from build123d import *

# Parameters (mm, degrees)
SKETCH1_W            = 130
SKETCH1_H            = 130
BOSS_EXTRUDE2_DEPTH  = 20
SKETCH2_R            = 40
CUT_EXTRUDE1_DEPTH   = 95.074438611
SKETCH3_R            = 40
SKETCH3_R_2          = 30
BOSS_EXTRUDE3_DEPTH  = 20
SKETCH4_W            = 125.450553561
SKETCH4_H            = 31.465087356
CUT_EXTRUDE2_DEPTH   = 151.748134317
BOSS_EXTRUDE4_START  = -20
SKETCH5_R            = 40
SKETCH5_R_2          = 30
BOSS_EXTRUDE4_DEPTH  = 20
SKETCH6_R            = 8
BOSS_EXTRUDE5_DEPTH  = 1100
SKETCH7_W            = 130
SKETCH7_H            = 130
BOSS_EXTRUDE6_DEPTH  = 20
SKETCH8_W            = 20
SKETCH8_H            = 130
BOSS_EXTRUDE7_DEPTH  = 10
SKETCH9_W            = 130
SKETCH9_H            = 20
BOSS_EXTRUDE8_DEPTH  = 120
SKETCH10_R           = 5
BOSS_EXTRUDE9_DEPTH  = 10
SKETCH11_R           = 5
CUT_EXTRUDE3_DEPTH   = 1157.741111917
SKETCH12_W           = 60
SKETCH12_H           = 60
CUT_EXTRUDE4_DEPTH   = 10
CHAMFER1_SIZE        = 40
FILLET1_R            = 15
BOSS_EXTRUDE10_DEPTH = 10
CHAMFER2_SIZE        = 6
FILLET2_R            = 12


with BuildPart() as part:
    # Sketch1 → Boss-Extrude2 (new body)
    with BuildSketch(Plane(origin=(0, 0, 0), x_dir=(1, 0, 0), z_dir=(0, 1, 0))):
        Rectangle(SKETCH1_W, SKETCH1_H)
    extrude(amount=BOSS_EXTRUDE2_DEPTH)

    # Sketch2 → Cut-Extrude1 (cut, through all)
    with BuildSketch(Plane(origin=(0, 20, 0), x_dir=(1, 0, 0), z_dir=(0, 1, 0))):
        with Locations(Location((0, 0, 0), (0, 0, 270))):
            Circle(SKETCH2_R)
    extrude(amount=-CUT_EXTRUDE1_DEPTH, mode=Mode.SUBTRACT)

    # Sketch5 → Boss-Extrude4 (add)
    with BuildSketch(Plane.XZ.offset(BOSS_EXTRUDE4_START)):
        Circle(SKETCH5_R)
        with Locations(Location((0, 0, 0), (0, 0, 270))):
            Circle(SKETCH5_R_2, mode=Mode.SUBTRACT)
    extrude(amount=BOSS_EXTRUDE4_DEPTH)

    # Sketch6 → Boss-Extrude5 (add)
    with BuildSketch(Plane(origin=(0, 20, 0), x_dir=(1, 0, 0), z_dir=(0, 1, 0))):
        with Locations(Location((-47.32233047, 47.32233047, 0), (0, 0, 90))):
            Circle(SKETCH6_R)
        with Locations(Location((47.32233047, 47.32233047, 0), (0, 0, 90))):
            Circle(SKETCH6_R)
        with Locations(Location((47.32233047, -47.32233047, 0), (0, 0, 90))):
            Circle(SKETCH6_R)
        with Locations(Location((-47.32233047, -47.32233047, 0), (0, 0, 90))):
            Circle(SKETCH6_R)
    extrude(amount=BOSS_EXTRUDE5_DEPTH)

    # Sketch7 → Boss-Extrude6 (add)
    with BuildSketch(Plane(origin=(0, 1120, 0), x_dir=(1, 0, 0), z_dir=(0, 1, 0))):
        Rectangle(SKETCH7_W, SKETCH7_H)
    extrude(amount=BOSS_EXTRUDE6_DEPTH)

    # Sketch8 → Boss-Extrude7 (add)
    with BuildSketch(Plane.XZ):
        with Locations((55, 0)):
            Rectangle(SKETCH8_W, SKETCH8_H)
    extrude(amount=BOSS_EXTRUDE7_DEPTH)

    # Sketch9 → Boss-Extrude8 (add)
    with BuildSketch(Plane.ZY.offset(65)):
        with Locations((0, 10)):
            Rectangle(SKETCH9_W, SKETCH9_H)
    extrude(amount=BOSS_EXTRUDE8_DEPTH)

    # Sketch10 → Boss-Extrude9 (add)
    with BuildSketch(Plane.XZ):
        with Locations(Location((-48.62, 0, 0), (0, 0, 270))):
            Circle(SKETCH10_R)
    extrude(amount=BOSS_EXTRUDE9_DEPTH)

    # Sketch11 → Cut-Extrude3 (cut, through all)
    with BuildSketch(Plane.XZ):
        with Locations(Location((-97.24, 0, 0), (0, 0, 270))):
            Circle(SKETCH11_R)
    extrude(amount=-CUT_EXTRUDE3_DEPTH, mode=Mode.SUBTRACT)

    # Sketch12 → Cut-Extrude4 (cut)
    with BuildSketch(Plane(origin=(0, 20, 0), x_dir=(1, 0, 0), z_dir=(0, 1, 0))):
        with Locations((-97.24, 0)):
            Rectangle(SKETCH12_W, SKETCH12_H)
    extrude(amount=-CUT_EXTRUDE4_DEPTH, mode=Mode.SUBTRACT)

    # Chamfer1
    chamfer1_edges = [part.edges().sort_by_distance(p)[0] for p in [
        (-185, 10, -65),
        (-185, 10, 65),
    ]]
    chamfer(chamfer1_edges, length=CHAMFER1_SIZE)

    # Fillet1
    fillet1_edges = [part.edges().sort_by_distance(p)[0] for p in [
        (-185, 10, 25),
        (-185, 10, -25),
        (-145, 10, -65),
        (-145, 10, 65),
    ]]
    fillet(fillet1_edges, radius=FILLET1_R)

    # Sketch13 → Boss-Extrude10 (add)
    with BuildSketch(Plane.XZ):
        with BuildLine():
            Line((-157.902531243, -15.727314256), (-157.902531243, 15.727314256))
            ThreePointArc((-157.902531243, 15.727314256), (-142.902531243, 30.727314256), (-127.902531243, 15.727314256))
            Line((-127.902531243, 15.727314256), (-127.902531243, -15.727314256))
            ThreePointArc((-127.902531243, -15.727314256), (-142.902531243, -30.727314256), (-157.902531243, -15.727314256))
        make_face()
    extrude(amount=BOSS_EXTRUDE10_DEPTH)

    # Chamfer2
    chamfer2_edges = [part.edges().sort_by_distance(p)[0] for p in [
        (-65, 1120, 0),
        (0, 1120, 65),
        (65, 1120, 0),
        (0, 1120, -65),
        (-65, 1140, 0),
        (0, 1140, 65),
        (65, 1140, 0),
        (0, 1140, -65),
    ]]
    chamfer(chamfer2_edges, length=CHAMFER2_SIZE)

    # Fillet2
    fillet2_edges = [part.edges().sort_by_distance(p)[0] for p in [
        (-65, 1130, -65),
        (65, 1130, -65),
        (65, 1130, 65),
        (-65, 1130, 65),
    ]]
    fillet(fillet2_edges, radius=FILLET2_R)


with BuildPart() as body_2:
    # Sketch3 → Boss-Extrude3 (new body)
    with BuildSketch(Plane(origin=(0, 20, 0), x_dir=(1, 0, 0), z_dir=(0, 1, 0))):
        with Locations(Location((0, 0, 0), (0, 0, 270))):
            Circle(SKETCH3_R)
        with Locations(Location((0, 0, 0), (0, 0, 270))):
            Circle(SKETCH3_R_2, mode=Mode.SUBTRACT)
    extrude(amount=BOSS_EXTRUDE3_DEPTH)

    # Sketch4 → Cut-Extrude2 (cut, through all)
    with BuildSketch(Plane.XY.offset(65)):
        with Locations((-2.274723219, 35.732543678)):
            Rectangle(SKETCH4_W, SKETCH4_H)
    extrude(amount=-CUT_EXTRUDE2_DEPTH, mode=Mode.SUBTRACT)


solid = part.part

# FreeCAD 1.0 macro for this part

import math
import FreeCAD as App
import Part
import Sketcher


def edges_at(feature, points):
    """Names of the edges that pass closest to the given points."""
    edges = feature.Shape.Edges
    near = lambda p: min(range(len(edges)), key=lambda i: edges[i].distToShape(Part.Vertex(*p))[0])
    return sorted({f"Edge{near(p) + 1}" for p in points})


def add_polygon(sketch, points):
    """Adds a closed chain of lines whose ends are joined by coincident constraints."""
    first, n = sketch.GeometryCount, len(points)
    for a, b in zip(points, points[1:] + points[:1]):
        sketch.addGeometry(Part.LineSegment(App.Vector(*a, 0), App.Vector(*b, 0)), False)
    for i in range(n):
        sketch.addConstraint(Sketcher.Constraint("Coincident", first + i, 2, first + (i + 1) % n, 1))

doc = App.newDocument("Part")
body = doc.addObject("PartDesign::Body", "Body")

# Sketch on XZ plane
sketch1 = body.newObject("Sketcher::SketchObject", "Sketch")
sketch1.AttachmentSupport = (doc.getObject("XZ_Plane"), [""])
sketch1.MapMode = "FlatFace"
add_polygon(sketch1, [(-65, -65), (-65, 65), (65, 65), (65, -65)])  # lines 0-3
sketch1.addConstraint(Sketcher.Constraint("Vertical", 0))
sketch1.addConstraint(Sketcher.Constraint("Horizontal", 1))
sketch1.addConstraint(Sketcher.Constraint("Vertical", 2))
sketch1.addConstraint(Sketcher.Constraint("Horizontal", 3))
sketch1.addConstraint(Sketcher.Constraint("Symmetric", 0, 2, 2, 2, -1, 1))
sketch1.addConstraint(Sketcher.Constraint("Equal", 3, 0))
sketch1.addConstraint(Sketcher.Constraint("DistanceX", 1, 1, 1, 2, 130.0))
pad1 = body.newObject("PartDesign::Pad", "Pad")
pad1.Profile = sketch1
pad1.Length = 20
pad1.Reversed = True

# Sketch on XZ plane
sketch2 = body.newObject("Sketcher::SketchObject", "Sketch001")
sketch2.AttachmentSupport = (doc.getObject("XZ_Plane"), [""])
sketch2.MapMode = "FlatFace"
sketch2.AttachmentOffset = App.Placement(App.Vector(0, 0, -20), App.Rotation())
sketch2.addGeometry(Part.Circle(App.Vector(0, 0, 0), App.Vector(0, 0, 1), 40), False)
sketch2.addConstraint(Sketcher.Constraint("Coincident", 0, 3, -1, 1))
sketch2.addConstraint(Sketcher.Constraint("Diameter", 0, 80.0))
pocket1 = body.newObject("PartDesign::Pocket", "Pocket")
pocket1.Profile = sketch2
pocket1.Type = "ThroughAll"
pocket1.Reversed = True

# Sketch on XZ plane
sketch3 = body.newObject("Sketcher::SketchObject", "Sketch002")
sketch3.AttachmentSupport = (doc.getObject("XZ_Plane"), [""])
sketch3.MapMode = "FlatFace"
sketch3.AttachmentOffset = App.Placement(App.Vector(0, 0, -20), App.Rotation())
sketch3.addGeometry(Part.Circle(App.Vector(0, 0, 0), App.Vector(0, 0, 1), 40), False)
sketch3.addGeometry(Part.Circle(App.Vector(0, 0, 0), App.Vector(0, 0, 1), 30), False)
sketch3.addConstraint(Sketcher.Constraint("Coincident", 0, 3, -1, 1))
sketch3.addConstraint(Sketcher.Constraint("Coincident", 1, 3, -1, 1))
sketch3.addConstraint(Sketcher.Constraint("Diameter", 0, 80.0))
sketch3.addConstraint(Sketcher.Constraint("Diameter", 1, 60.0))
pad2 = body.newObject("PartDesign::Pad", "Pad001")
pad2.Profile = sketch3
pad2.Length = 20

# Sketch on XZ plane
sketch4 = body.newObject("Sketcher::SketchObject", "Sketch003")
sketch4.AttachmentSupport = (doc.getObject("XZ_Plane"), [""])
sketch4.MapMode = "FlatFace"
sketch4.AttachmentOffset = App.Placement(App.Vector(0, 0, -20), App.Rotation())
sketch4.addGeometry(Part.Circle(App.Vector(-47, -47, 0), App.Vector(0, 0, 1), 8), False)
sketch4.addGeometry(Part.Circle(App.Vector(47, -47, 0), App.Vector(0, 0, 1), 8), False)
sketch4.addGeometry(Part.Circle(App.Vector(47, 47, 0), App.Vector(0, 0, 1), 8), False)
sketch4.addGeometry(Part.Circle(App.Vector(-47, 47, 0), App.Vector(0, 0, 1), 8), False)
sketch4.addConstraint(Sketcher.Constraint("Equal", 0, 1))
sketch4.addConstraint(Sketcher.Constraint("Equal", 1, 2))
sketch4.addConstraint(Sketcher.Constraint("Equal", 2, 3))
sketch4.addConstraint(Sketcher.Constraint("Symmetric", 0, 3, 2, 3, -1, 1))
sketch4.addConstraint(Sketcher.Constraint("Symmetric", 1, 3, 3, 3, -1, 1))
sketch4.addConstraint(Sketcher.Constraint("Symmetric", 0, 3, 1, 3, -2))
sketch4.addConstraint(Sketcher.Constraint("Diameter", 0, 16.0))
sketch4.addConstraint(Sketcher.Constraint("DistanceX", 0, 3, -1, 1, 47.32233))
sketch4.addConstraint(Sketcher.Constraint("DistanceY", 0, 3, -1, 1, 47.32233))
pad3 = body.newObject("PartDesign::Pad", "Pad002")
pad3.Profile = sketch4
pad3.Length = 1100
pad3.Reversed = True

# Sketch on XZ plane
sketch5 = body.newObject("Sketcher::SketchObject", "Sketch004")
sketch5.AttachmentSupport = (doc.getObject("XZ_Plane"), [""])
sketch5.MapMode = "FlatFace"
sketch5.AttachmentOffset = App.Placement(App.Vector(0, 0, -1120), App.Rotation())
add_polygon(sketch5, [(-65, -65), (-65, 65), (65, 65), (65, -65)])  # lines 0-3
sketch5.addConstraint(Sketcher.Constraint("Vertical", 0))
sketch5.addConstraint(Sketcher.Constraint("Horizontal", 1))
sketch5.addConstraint(Sketcher.Constraint("Vertical", 2))
sketch5.addConstraint(Sketcher.Constraint("Horizontal", 3))
sketch5.addConstraint(Sketcher.Constraint("Symmetric", 0, 2, 2, 2, -1, 1))
sketch5.addConstraint(Sketcher.Constraint("Equal", 3, 0))
sketch5.addConstraint(Sketcher.Constraint("DistanceX", 1, 1, 1, 2, 130.0))
pad4 = body.newObject("PartDesign::Pad", "Pad003")
pad4.Profile = sketch5
pad4.Length = 20
pad4.Reversed = True

# Sketch on XZ plane
sketch6 = body.newObject("Sketcher::SketchObject", "Sketch005")
sketch6.AttachmentSupport = (doc.getObject("XZ_Plane"), [""])
sketch6.MapMode = "FlatFace"
add_polygon(sketch6, [(45, 65), (45, -65), (65, -65), (65, 65)])  # lines 0-3
sketch6.addConstraint(Sketcher.Constraint("Vertical", 0))
sketch6.addConstraint(Sketcher.Constraint("Horizontal", 1))
sketch6.addConstraint(Sketcher.Constraint("Vertical", 2))
sketch6.addConstraint(Sketcher.Constraint("Horizontal", 3))
sketch6.addConstraint(Sketcher.Constraint("DistanceX", 1, 1, 1, 2, 20.0))
sketch6.addConstraint(Sketcher.Constraint("DistanceY", 0, 2, 0, 1, 130.0))
sketch6.addConstraint(Sketcher.Constraint("DistanceX", -1, 1, 0, 2, 45.0))
sketch6.addConstraint(Sketcher.Constraint("DistanceY", 0, 2, -1, 1, 65.0))
pad5 = body.newObject("PartDesign::Pad", "Pad004")
pad5.Profile = sketch6
pad5.Length = 10

# Sketch on YZ plane
sketch7 = body.newObject("Sketcher::SketchObject", "Sketch006")
sketch7.AttachmentSupport = (doc.getObject("YZ_Plane"), [""])
sketch7.MapMode = "FlatFace"
sketch7.AttachmentOffset = App.Placement(App.Vector(0, 0, -65), App.Rotation())
add_polygon(sketch7, [(20, -65), (0, -65), (0, 65), (20, 65)])  # lines 0-3
sketch7.addConstraint(Sketcher.Constraint("Horizontal", 0))
sketch7.addConstraint(Sketcher.Constraint("Vertical", 1))
sketch7.addConstraint(Sketcher.Constraint("Horizontal", 2))
sketch7.addConstraint(Sketcher.Constraint("Vertical", 3))
sketch7.addConstraint(Sketcher.Constraint("Symmetric", 0, 2, 1, 2, -1, 1))
sketch7.addConstraint(Sketcher.Constraint("DistanceX", 0, 2, 0, 1, 20.0))
sketch7.addConstraint(Sketcher.Constraint("DistanceY", 1, 1, 1, 2, 130.0))
pad6 = body.newObject("PartDesign::Pad", "Pad005")
pad6.Profile = sketch7
pad6.Length = 120
pad6.Reversed = True

# Sketch on XZ plane
sketch8 = body.newObject("Sketcher::SketchObject", "Sketch007")
sketch8.AttachmentSupport = (doc.getObject("XZ_Plane"), [""])
sketch8.MapMode = "FlatFace"
sketch8.addGeometry(Part.Circle(App.Vector(-49, 0, 0), App.Vector(0, 0, 1), 5), False)
sketch8.addConstraint(Sketcher.Constraint("PointOnObject", 0, 3, -1))
sketch8.addConstraint(Sketcher.Constraint("Diameter", 0, 10.0))
sketch8.addConstraint(Sketcher.Constraint("DistanceX", 0, 3, -1, 1, 48.62))
pad7 = body.newObject("PartDesign::Pad", "Pad006")
pad7.Profile = sketch8
pad7.Length = 10

# Sketch on XZ plane
sketch9 = body.newObject("Sketcher::SketchObject", "Sketch008")
sketch9.AttachmentSupport = (doc.getObject("XZ_Plane"), [""])
sketch9.MapMode = "FlatFace"
sketch9.addGeometry(Part.Circle(App.Vector(-97, 0, 0), App.Vector(0, 0, 1), 5), False)
sketch9.addConstraint(Sketcher.Constraint("PointOnObject", 0, 3, -1))
sketch9.addConstraint(Sketcher.Constraint("Diameter", 0, 10.0))
sketch9.addConstraint(Sketcher.Constraint("DistanceX", 0, 3, -1, 1, 97.24))
pocket2 = body.newObject("PartDesign::Pocket", "Pocket001")
pocket2.Profile = sketch9
pocket2.Type = "ThroughAll"

# Sketch on XZ plane
sketch10 = body.newObject("Sketcher::SketchObject", "Sketch009")
sketch10.AttachmentSupport = (doc.getObject("XZ_Plane"), [""])
sketch10.MapMode = "FlatFace"
sketch10.AttachmentOffset = App.Placement(App.Vector(0, 0, -20), App.Rotation())
add_polygon(sketch10, [(-127, -30), (-127, 30), (-67, 30), (-67, -30)])  # lines 0-3
sketch10.addConstraint(Sketcher.Constraint("Vertical", 0))
sketch10.addConstraint(Sketcher.Constraint("Horizontal", 1))
sketch10.addConstraint(Sketcher.Constraint("Vertical", 2))
sketch10.addConstraint(Sketcher.Constraint("Horizontal", 3))
sketch10.addConstraint(Sketcher.Constraint("Equal", 3, 0))
sketch10.addConstraint(Sketcher.Constraint("DistanceX", 1, 1, 1, 2, 60.0))
sketch10.addConstraint(Sketcher.Constraint("DistanceY", -1, 1, 0, 2, 30.0))
sketch10.addConstraint(Sketcher.Constraint("DistanceX", 0, 2, -1, 1, 127.24))
pocket3 = body.newObject("PartDesign::Pocket", "Pocket002")
pocket3.Profile = sketch10
pocket3.Length = 10
pocket3.Reversed = True
doc.recompute()

chamfer = body.newObject("PartDesign::Chamfer", "Chamfer")
chamfer.Base = (pocket3, edges_at(pocket3, [(-185, 10, -65), (-185, 10, 65)]))
chamfer.Size = 40
doc.recompute()

fillet = body.newObject("PartDesign::Fillet", "Fillet")
fillet.Base = (chamfer, edges_at(chamfer, [
    (-185, 10, 25),
    (-185, 10, -25),
    (-145, 10, -65),
    (-145, 10, 65),
]))
fillet.Radius = 15

# Sketch on XZ plane
sketch11 = body.newObject("Sketcher::SketchObject", "Sketch010")
sketch11.AttachmentSupport = (doc.getObject("XZ_Plane"), [""])
sketch11.MapMode = "FlatFace"
sketch11.addGeometry(Part.LineSegment(App.Vector(-158, 16, 0), App.Vector(-158, -16, 0)), False)
sketch11.addGeometry(Part.ArcOfCircle(Part.Circle(App.Vector(-143, -16, 0), App.Vector(0, 0, 1), 15), math.radians(180), math.radians(360)), False)
sketch11.addGeometry(Part.LineSegment(App.Vector(-128, -16, 0), App.Vector(-128, 16, 0)), False)
sketch11.addGeometry(Part.ArcOfCircle(Part.Circle(App.Vector(-143, 16, 0), App.Vector(0, 0, 1), 15), math.radians(0), math.radians(180)), False)
sketch11.addConstraint(Sketcher.Constraint("Tangent", 0, 2, 1, 1))
sketch11.addConstraint(Sketcher.Constraint("Tangent", 1, 2, 2, 1))
sketch11.addConstraint(Sketcher.Constraint("Tangent", 2, 2, 3, 1))
sketch11.addConstraint(Sketcher.Constraint("Tangent", 3, 2, 0, 1))
sketch11.addConstraint(Sketcher.Constraint("Vertical", 0))
sketch11.addConstraint(Sketcher.Constraint("Vertical", 2))
sketch11.addConstraint(Sketcher.Constraint("Radius", 1, 15.0))
sketch11.addConstraint(Sketcher.Constraint("DistanceY", 0, 2, 0, 1, 31.454629))
sketch11.addConstraint(Sketcher.Constraint("DistanceX", 1, 3, -1, 1, 142.902531))
sketch11.addConstraint(Sketcher.Constraint("DistanceY", 1, 3, -1, 1, 15.727314))
pad8 = body.newObject("PartDesign::Pad", "Pad007")
pad8.Profile = sketch11
pad8.Length = 10
doc.recompute()

chamfer2 = body.newObject("PartDesign::Chamfer", "Chamfer001")
chamfer2.Base = (pad8, edges_at(pad8, [
    (-65, 1120, 0),
    (0, 1120, 65),
    (65, 1120, 0),
    (0, 1120, -65),
    (-65, 1140, 0),
    (0, 1140, 65),
    (65, 1140, 0),
    (0, 1140, -65),
]))
chamfer2.Size = 6
doc.recompute()

fillet2 = body.newObject("PartDesign::Fillet", "Fillet001")
fillet2.Base = (chamfer2, edges_at(chamfer2, [
    (-65, 1130, -65),
    (65, 1130, -65),
    (65, 1130, 65),
    (-65, 1130, 65),
]))
fillet2.Radius = 12
body2 = doc.addObject("PartDesign::Body", "Body001")

# Sketch on XZ plane
sketch12 = body2.newObject("Sketcher::SketchObject", "Sketch011")
sketch12.AttachmentSupport = (doc.getObject("XZ_Plane001"), [""])
sketch12.MapMode = "FlatFace"
sketch12.AttachmentOffset = App.Placement(App.Vector(0, 0, -20), App.Rotation())
sketch12.addGeometry(Part.Circle(App.Vector(0, 0, 0), App.Vector(0, 0, 1), 40), False)
sketch12.addGeometry(Part.Circle(App.Vector(0, 0, 0), App.Vector(0, 0, 1), 30), False)
sketch12.addConstraint(Sketcher.Constraint("Coincident", 0, 3, -1, 1))
sketch12.addConstraint(Sketcher.Constraint("Coincident", 1, 3, -1, 1))
sketch12.addConstraint(Sketcher.Constraint("Diameter", 0, 80.0))
sketch12.addConstraint(Sketcher.Constraint("Diameter", 1, 60.0))
pad9 = body2.newObject("PartDesign::Pad", "Pad008")
pad9.Profile = sketch12
pad9.Length = 20
pad9.Reversed = True

# Sketch on XY plane
sketch13 = body2.newObject("Sketcher::SketchObject", "Sketch012")
sketch13.AttachmentSupport = (doc.getObject("XY_Plane001"), [""])
sketch13.MapMode = "FlatFace"
sketch13.AttachmentOffset = App.Placement(App.Vector(0, 0, 65), App.Rotation())
add_polygon(sketch13, [(-65, 51), (-65, 20), (60, 20), (60, 51)])  # lines 0-3
sketch13.addConstraint(Sketcher.Constraint("Vertical", 0))
sketch13.addConstraint(Sketcher.Constraint("Horizontal", 1))
sketch13.addConstraint(Sketcher.Constraint("Vertical", 2))
sketch13.addConstraint(Sketcher.Constraint("Horizontal", 3))
sketch13.addConstraint(Sketcher.Constraint("DistanceX", 0, 2, -1, 1, 65.0))
sketch13.addConstraint(Sketcher.Constraint("DistanceY", -1, 1, 0, 2, 20.0))
sketch13.addConstraint(Sketcher.Constraint("DistanceX", 1, 1, 1, 2, 125.450554))
sketch13.addConstraint(Sketcher.Constraint("DistanceY", 0, 2, 0, 1, 31.465087))
pocket4 = body2.newObject("PartDesign::Pocket", "Pocket003")
pocket4.Profile = sketch13
pocket4.Type = "ThroughAll"

doc.recompute()
